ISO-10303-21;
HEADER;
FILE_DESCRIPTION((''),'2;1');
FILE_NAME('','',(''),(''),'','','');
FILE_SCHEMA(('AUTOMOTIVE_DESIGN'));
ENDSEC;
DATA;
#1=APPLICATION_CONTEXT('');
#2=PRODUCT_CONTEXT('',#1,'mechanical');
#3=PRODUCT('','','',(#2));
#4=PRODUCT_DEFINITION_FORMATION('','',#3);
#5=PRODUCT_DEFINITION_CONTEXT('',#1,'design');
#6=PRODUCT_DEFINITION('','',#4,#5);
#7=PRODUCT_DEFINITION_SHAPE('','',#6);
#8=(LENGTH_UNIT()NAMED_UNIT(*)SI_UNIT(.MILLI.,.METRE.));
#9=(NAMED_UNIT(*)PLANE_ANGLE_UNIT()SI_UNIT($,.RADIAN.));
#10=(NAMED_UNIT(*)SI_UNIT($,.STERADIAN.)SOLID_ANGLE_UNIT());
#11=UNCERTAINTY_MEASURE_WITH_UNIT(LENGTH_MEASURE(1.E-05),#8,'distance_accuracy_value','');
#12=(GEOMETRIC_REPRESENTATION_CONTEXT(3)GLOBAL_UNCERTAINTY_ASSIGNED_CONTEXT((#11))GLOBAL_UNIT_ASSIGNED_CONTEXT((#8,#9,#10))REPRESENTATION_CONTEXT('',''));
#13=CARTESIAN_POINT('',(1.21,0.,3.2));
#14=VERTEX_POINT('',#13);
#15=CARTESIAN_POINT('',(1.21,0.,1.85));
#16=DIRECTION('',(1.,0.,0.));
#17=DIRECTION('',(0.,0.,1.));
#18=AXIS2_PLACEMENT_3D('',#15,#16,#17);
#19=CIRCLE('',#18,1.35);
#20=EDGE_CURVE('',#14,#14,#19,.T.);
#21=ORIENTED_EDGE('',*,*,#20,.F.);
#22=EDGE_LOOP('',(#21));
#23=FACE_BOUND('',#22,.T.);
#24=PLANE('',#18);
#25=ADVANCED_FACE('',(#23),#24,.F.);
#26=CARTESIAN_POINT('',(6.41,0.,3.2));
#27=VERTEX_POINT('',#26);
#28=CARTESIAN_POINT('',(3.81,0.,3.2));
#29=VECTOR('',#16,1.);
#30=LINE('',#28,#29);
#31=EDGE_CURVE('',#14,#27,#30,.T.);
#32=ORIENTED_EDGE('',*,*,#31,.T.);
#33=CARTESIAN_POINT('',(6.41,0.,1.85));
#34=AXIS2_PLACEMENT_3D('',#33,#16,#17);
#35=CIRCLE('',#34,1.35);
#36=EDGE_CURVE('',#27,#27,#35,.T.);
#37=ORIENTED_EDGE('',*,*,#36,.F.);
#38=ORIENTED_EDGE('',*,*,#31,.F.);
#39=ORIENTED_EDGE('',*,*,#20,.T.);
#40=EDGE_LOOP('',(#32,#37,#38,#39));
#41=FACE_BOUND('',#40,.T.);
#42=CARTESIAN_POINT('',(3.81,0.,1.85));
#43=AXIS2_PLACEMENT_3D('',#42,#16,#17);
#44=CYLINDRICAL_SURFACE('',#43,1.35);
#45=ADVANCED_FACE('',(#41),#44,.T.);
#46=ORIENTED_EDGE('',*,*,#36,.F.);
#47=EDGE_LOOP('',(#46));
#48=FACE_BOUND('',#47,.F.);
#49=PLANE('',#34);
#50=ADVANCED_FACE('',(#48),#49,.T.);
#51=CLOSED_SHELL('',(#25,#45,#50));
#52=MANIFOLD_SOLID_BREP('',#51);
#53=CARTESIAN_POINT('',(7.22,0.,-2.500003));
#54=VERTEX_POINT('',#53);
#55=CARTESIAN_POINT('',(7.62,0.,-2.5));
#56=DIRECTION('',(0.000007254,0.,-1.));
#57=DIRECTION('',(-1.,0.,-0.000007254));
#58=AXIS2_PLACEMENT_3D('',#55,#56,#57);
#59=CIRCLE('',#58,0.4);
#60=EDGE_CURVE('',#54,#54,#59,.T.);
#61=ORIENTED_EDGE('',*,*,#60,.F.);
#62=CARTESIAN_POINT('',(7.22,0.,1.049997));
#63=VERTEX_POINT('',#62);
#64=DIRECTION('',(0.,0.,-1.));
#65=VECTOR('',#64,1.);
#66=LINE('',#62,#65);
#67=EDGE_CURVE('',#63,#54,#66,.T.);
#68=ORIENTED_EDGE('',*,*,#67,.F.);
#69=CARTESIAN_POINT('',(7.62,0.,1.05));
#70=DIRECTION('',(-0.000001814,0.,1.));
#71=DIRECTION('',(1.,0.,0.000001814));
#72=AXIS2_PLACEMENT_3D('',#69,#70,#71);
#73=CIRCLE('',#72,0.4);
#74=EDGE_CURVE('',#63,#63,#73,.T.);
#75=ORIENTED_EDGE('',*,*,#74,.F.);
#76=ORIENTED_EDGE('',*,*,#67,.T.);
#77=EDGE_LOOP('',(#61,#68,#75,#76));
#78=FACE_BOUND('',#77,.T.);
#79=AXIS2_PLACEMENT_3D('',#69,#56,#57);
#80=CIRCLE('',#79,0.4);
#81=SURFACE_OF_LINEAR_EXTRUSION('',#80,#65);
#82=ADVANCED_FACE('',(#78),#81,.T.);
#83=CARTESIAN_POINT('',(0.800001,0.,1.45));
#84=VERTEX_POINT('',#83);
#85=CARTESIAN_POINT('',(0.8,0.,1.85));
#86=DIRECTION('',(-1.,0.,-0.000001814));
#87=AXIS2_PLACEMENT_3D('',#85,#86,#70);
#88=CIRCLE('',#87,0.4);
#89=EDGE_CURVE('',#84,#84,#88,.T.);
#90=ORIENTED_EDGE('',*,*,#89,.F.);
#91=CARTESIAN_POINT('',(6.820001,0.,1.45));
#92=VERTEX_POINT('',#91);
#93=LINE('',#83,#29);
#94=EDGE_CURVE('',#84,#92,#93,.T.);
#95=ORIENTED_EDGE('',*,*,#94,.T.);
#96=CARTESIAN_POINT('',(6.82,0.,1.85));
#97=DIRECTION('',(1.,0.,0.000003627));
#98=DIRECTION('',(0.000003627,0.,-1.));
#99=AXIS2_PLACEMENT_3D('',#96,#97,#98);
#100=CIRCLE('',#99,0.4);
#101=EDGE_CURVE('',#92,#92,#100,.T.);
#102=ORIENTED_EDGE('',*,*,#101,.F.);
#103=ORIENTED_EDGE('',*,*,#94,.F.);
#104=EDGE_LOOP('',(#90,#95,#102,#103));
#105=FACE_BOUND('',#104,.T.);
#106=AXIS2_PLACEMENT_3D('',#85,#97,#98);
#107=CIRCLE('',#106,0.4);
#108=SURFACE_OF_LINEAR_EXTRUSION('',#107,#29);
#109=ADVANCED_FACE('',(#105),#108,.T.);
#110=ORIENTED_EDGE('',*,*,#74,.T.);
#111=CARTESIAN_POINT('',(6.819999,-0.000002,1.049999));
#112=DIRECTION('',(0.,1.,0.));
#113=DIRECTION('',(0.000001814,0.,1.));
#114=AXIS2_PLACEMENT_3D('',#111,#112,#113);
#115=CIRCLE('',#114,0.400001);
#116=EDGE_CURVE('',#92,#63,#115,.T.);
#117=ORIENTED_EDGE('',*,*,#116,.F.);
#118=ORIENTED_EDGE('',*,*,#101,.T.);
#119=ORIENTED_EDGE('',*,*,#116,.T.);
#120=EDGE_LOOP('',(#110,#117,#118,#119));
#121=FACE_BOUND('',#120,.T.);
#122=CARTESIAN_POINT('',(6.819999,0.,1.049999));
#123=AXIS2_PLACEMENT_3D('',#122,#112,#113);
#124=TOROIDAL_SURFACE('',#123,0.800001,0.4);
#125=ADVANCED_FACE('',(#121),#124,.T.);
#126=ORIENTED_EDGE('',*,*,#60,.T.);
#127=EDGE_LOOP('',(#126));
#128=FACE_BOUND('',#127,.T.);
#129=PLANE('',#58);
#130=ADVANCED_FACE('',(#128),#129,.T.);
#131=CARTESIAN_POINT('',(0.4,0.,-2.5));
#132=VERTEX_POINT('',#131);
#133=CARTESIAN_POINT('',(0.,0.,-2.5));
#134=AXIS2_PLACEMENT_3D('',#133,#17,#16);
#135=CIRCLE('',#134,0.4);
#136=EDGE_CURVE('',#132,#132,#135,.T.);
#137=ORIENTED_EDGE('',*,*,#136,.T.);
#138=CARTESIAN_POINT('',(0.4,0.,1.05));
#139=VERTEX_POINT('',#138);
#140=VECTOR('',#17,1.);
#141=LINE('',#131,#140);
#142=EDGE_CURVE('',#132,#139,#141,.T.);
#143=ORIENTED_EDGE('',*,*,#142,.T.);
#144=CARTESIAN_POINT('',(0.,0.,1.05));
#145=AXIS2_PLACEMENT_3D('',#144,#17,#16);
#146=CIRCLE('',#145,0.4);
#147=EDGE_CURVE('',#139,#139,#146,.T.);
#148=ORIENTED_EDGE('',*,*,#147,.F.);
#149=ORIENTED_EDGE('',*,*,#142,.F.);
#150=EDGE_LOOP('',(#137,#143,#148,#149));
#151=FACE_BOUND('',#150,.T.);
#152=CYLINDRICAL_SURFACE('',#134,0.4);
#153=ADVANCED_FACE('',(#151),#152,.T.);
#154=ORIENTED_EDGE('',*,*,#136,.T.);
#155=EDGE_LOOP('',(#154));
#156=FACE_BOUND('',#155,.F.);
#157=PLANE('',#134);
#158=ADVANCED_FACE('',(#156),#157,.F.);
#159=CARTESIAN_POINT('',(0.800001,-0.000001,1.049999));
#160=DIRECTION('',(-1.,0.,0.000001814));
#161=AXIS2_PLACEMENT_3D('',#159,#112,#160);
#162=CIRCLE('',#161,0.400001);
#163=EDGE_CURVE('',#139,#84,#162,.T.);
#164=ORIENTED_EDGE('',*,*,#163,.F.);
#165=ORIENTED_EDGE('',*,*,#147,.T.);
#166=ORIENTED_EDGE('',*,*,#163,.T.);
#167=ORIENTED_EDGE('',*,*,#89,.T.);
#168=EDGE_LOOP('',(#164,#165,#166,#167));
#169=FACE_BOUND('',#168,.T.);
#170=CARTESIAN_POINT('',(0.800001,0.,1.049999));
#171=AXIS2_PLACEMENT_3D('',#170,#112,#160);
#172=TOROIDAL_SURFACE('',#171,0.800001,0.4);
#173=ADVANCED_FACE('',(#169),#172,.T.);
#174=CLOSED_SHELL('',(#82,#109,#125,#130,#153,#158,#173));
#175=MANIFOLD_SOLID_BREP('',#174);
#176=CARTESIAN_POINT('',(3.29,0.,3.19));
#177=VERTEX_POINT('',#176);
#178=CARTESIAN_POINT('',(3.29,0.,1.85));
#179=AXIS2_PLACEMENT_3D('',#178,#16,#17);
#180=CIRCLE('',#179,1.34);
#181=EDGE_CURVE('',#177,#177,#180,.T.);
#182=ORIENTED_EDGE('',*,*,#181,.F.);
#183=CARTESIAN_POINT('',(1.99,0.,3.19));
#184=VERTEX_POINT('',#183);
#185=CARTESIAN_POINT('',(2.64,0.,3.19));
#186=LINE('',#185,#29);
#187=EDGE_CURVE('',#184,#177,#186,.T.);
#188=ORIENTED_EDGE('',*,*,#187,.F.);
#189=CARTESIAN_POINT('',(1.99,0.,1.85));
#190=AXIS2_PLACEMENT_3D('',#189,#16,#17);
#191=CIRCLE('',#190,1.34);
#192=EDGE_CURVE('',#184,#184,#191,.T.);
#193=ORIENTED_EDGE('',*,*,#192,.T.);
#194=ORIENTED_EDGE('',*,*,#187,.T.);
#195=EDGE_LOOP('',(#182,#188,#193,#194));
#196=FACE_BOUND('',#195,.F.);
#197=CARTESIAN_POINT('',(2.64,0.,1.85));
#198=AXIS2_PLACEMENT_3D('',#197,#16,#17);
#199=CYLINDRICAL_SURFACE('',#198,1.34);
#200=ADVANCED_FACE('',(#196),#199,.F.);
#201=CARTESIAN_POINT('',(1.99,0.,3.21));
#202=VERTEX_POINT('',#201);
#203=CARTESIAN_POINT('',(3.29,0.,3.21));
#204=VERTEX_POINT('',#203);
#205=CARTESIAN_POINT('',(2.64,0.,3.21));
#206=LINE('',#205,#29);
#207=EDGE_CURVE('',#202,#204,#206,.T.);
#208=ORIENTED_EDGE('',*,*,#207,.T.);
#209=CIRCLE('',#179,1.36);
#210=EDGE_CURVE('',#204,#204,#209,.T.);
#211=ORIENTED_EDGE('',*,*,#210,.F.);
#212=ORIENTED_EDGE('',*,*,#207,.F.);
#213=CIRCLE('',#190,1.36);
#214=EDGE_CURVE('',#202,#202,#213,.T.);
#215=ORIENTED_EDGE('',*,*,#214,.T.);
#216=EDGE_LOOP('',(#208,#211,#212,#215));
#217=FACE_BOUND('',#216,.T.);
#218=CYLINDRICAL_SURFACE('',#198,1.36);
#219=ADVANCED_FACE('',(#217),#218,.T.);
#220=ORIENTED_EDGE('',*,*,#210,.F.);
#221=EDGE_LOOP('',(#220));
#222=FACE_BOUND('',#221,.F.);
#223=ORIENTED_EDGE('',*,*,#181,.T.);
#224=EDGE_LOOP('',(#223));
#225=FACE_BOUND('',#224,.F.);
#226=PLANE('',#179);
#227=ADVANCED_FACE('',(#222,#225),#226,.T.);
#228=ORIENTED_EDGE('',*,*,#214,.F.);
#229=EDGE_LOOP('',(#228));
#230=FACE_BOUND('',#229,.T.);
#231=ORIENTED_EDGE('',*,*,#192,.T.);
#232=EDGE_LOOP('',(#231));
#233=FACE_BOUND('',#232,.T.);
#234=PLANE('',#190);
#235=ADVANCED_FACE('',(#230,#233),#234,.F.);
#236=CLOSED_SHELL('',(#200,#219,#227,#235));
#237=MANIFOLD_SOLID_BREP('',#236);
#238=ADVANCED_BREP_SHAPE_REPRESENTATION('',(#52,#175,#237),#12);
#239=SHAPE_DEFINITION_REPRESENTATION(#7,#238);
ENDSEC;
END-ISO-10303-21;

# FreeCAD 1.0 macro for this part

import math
import FreeCAD as App
import Part
import Sketcher
Q = App.Units.Quantity


def add_polygon(sketch, points):
    """Adds a closed chain of lines whose ends are joined by coincident constraints."""
    first, n = sketch.GeometryCount, len(points)
    for a, b in zip(points, points[1:] + points[:1]):
        sketch.addGeometry(Part.LineSegment(App.Vector(*a, 0), App.Vector(*b, 0)), False)
    for i in range(n):
        sketch.addConstraint(Sketcher.Constraint("Coincident", first + i, 2, first + (i + 1) % n, 1))

doc = App.newDocument("Part")
body = doc.addObject("PartDesign::Body", "Body")

# Sketch on XZ plane
sketch1 = doc.addObject("Sketcher::SketchObject", "Sketch")
body.addObject(sketch1)
sketch1.AttachmentSupport = (doc.XZ_Plane, [""])
sketch1.MapMode = "FlatFace"
add_polygon(sketch1, [(1.2, 3.2), (1.2, 1.9), (6.4, 1.9), (6.4, 3.2)])  # lines 0-3
sketch1.addGeometry(Part.LineSegment(App.Vector(1.2, 1.9, 0), App.Vector(6.4, 1.9, 0)), True)  # axis
sketch1.addConstraint([
    Sketcher.Constraint("Vertical", 0),
    Sketcher.Constraint("Horizontal", 1),
    Sketcher.Constraint("Vertical", 2),
    Sketcher.Constraint("Horizontal", 3),
    Sketcher.Constraint("Horizontal", 4),
    Sketcher.Constraint("Coincident", 4, 1, 0, 2),
    Sketcher.Constraint("Vertical", 2, 2, 4, 2),
    Sketcher.Constraint("DistanceX", 1, 1, 1, 2, Q("5.2 mm")),
    Sketcher.Constraint("DistanceY", 0, 2, 0, 1, Q("1.35 mm")),
    Sketcher.Constraint("DistanceY", -1, 1, 2, 2, Q("3.2 mm")),
    Sketcher.Constraint("DistanceX", -1, 1, 0, 2, Q("1.21 mm")),
])
revolution = doc.addObject("PartDesign::Revolution", "Revolution")
body.addObject(revolution)
revolution.Profile = sketch1
revolution.ReferenceAxis = (sketch1, ["Axis0"])
revolution.Angle = 360
body2 = doc.addObject("PartDesign::Body", "Body001")

# Sketch on XZ plane
sketch2 = doc.addObject("Sketcher::SketchObject", "Sketch001")
body2.addObject(sketch2)
sketch2.AttachmentSupport = (doc.getObject("XZ_Plane001"), [""])
sketch2.MapMode = "FlatFace"
add_polygon(sketch2, [(1.99, 3.21), (1.99, 3.19), (3.29, 3.19), (3.29, 3.21)])  # lines 0-3
sketch2.addGeometry(Part.LineSegment(App.Vector(1.99, 1.85, 0), App.Vector(3.29, 1.85, 0)), True)  # axis
sketch2.addConstraint([
    Sketcher.Constraint("Vertical", 0),
    Sketcher.Constraint("Horizontal", 1),
    Sketcher.Constraint("Vertical", 2),
    Sketcher.Constraint("Horizontal", 3),
    Sketcher.Constraint("Horizontal", 4),
    Sketcher.Constraint("Vertical", 3, 2, 4, 1),
    Sketcher.Constraint("Vertical", 2, 2, 4, 2),
    Sketcher.Constraint("DistanceX", 1, 1, 1, 2, Q("1.3 mm")),
    Sketcher.Constraint("DistanceY", 0, 2, 0, 1, Q("0.02 mm")),
    Sketcher.Constraint("DistanceX", -1, 1, 0, 2, Q("1.99 mm")),
    Sketcher.Constraint("DistanceY", -1, 1, 0, 2, Q("3.19 mm")),
    Sketcher.Constraint("DistanceY", -1, 1, 4, 1, Q("1.85 mm")),
])
revolution2 = doc.addObject("PartDesign::Revolution", "Revolution001")
body2.addObject(revolution2)
revolution2.Profile = sketch2
revolution2.ReferenceAxis = (sketch2, ["Axis0"])
revolution2.Angle = 360
body3 = doc.addObject("PartDesign::Body", "Body002")

# Sketch on XY plane
sketch3 = doc.addObject("Sketcher::SketchObject", "Sketch002")
body3.addObject(sketch3)
sketch3.AttachmentSupport = (doc.getObject("XY_Plane002"), [""])
sketch3.MapMode = "FlatFace"
sketch3.AttachmentOffset = App.Placement(App.Vector(0, 0, -2), App.Rotation())
sketch3.addGeometry(Part.Circle(App.Vector(0, 0, 0), App.Vector(0, 0, 1), 0.4), False)
sketch3.addConstraint([
    Sketcher.Constraint("Coincident", 0, 3, -1, 1),
    Sketcher.Constraint("Diameter", 0, Q("0.8 mm")),
])

# Sketch on XZ plane
sketch4 = doc.addObject("Sketcher::SketchObject", "Sketch003")
body3.addObject(sketch4)
sketch4.AttachmentSupport = (doc.getObject("XZ_Plane002"), [""])
sketch4.MapMode = "FlatFace"
sketch4.addGeometry([
    Part.LineSegment(App.Vector(0, -2.5, 0), App.Vector(0, 1.1, 0)),  # 0
    Part.ArcOfCircle(Part.Circle(App.Vector(0.8, 1, 0), App.Vector(0, 0, 1), 0.8), math.radians(90), math.radians(180)),  # 1
    Part.LineSegment(App.Vector(0.8, 1.9, 0), App.Vector(6.8, 1.9, 0)),  # 2
    Part.ArcOfCircle(Part.Circle(App.Vector(6.8, 1, 0), App.Vector(0, 0, 1), 0.8), math.radians(0), math.radians(90)),  # 3
    Part.LineSegment(App.Vector(7.6, 1.1, 0), App.Vector(7.6, -2.5, 0)),  # 4
], False)
sketch4.addConstraint([
    Sketcher.Constraint("Tangent", 0, 2, 1, 2),
    Sketcher.Constraint("Tangent", 1, 1, 2, 1),
    Sketcher.Constraint("Tangent", 2, 2, 3, 2),
    Sketcher.Constraint("Tangent", 3, 1, 4, 1),
    Sketcher.Constraint("Vertical", 0),
    Sketcher.Constraint("Horizontal", 2),
    Sketcher.Constraint("Vertical", 4),
    Sketcher.Constraint("Equal", 1, 3),
    Sketcher.Constraint("PointOnObject", 0, 1, -2),
    Sketcher.Constraint("Horizontal", 0, 1, 4, 2),
    Sketcher.Constraint("Radius", 1, Q("0.800001 mm")),
    Sketcher.Constraint("DistanceX", 2, 1, 2, 2, Q("6.02 mm")),
    Sketcher.Constraint("DistanceY", 0, 1, 0, 2, Q("3.55 mm")),
    Sketcher.Constraint("DistanceY", 0, 1, -1, 1, Q("2.5 mm")),
])
doc.recompute()

additivepipe = doc.addObject("PartDesign::AdditivePipe", "AdditivePipe")
body3.addObject(additivepipe)
additivepipe.Profile = sketch3
additivepipe.Spine = (sketch4, ["Edge1", "Edge2", "Edge3", "Edge4", "Edge5"])

doc.recompute()
